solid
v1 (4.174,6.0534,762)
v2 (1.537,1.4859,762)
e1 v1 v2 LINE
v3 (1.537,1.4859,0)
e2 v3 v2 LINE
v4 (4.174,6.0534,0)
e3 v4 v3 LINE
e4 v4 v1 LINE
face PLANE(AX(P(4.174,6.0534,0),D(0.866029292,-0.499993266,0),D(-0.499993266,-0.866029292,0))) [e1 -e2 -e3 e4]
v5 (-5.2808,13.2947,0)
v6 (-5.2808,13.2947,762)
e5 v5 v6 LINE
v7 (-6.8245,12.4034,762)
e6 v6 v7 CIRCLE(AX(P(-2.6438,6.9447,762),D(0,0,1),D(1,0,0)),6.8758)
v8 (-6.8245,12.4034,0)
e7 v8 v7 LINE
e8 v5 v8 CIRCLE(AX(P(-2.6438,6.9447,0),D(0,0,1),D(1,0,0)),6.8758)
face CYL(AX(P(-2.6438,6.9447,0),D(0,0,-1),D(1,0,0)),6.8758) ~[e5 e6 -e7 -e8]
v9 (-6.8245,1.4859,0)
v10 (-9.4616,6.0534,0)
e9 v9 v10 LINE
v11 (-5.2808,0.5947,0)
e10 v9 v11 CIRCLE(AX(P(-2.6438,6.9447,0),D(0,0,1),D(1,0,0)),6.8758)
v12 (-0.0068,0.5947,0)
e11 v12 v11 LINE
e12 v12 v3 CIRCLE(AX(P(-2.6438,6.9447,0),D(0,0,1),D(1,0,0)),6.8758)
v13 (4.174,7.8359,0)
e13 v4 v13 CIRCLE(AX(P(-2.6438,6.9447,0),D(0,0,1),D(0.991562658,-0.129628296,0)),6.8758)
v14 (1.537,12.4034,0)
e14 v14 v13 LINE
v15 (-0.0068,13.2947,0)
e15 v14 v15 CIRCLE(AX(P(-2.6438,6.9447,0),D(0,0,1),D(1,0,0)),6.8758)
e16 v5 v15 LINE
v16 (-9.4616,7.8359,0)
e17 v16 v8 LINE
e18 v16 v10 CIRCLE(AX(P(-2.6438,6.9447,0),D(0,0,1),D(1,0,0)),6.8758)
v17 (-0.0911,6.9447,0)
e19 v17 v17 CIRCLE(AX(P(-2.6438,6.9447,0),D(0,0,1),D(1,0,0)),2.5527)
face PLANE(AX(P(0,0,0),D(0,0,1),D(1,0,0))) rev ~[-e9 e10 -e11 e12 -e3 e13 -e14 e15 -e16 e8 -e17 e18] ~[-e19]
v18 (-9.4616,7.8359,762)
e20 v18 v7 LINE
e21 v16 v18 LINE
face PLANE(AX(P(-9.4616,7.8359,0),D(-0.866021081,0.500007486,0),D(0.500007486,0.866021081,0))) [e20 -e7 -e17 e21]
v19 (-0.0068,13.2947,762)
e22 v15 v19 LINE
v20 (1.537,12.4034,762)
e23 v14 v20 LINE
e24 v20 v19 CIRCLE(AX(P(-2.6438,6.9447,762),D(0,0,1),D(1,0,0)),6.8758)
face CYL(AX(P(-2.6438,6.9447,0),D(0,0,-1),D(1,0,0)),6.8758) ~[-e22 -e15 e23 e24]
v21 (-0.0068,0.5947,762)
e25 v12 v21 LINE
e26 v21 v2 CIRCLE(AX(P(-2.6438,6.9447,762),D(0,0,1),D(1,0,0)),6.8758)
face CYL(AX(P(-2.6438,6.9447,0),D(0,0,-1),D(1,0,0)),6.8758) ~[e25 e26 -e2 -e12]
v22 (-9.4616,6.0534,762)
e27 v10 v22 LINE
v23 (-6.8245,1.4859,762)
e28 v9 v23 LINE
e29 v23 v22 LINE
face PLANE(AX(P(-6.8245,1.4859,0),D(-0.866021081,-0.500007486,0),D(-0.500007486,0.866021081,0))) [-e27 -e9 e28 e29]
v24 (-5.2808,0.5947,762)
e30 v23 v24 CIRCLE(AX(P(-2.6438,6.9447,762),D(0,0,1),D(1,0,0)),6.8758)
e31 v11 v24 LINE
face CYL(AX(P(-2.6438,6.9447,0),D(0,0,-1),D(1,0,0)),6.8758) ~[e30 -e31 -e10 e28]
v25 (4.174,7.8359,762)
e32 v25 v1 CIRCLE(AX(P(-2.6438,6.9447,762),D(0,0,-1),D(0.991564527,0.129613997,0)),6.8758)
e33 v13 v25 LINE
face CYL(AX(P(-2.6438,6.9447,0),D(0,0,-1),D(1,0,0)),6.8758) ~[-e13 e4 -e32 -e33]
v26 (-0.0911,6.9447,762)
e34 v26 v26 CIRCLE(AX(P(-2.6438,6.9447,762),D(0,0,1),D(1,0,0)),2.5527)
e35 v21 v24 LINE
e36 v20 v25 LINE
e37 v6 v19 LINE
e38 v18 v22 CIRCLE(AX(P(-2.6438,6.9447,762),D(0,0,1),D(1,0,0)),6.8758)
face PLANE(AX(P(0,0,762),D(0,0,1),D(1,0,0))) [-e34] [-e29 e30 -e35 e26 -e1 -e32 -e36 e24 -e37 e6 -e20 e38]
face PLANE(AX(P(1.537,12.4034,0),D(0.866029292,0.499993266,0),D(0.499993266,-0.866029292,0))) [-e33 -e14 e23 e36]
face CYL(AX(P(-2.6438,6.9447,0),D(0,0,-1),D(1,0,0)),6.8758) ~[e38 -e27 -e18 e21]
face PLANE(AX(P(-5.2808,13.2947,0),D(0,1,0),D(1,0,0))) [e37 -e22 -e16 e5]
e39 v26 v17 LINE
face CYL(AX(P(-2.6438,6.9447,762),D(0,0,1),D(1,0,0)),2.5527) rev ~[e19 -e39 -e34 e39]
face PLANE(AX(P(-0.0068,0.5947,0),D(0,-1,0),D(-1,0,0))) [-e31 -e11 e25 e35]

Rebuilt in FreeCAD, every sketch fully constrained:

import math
import FreeCAD as App
import Part
import Sketcher

V = App.Vector
Q = App.Units.Quantity

doc = App.newDocument("Part")
params = doc.addObject("Spreadsheet::Sheet", "Params")
for row, (alias, value) in enumerate([
    ("pad1_length", "30 in"),
    ("sketch2_diameter", "0.201 in"),
    ("pocket1_length", "30 in"),
], start=1):
    params.set(f"A{row}", alias)
    params.set(f"B{row}", "=" + value)
    params.setAlias(f"B{row}", alias)

body = doc.addObject("PartDesign::Body", "Body")

# Sketch on XY plane
sketch1 = body.newObject("Sketcher::SketchObject", "Sketch")
sketch1.AttachmentSupport = (doc.getObject("XY_Plane"), [""])
sketch1.MapMode = "FlatFace"
sketch1.addGeometry([
    Part.ArcOfCircle(Part.Circle(V(-2.6, 6.9, 0), V(0, 0, 1), 6.9), math.radians(-7.45), math.radians(7.45)),  # 0
    Part.LineSegment(V(4.2, 7.8, 0), V(1.5, 12.4, 0)),  # 1
    Part.ArcOfCircle(Part.Circle(V(-2.6, 6.9, 0), V(0, 0, 1), 6.9), math.radians(52.55), math.radians(67.45)),  # 2
    Part.LineSegment(V(0, 13.3, 0), V(-5.3, 13.3, 0)),  # 3
    Part.ArcOfCircle(Part.Circle(V(-2.6, 6.9, 0), V(0, 0, 1), 6.9), math.radians(112.55), math.radians(127.45)),  # 4
    Part.LineSegment(V(-6.8, 12.4, 0), V(-9.5, 7.8, 0)),  # 5
    Part.ArcOfCircle(Part.Circle(V(-2.6, 6.9, 0), V(0, 0, 1), 6.9), math.radians(172.55), math.radians(187.45)),  # 6
    Part.LineSegment(V(-9.5, 6.1, 0), V(-6.8, 1.5, 0)),  # 7
    Part.ArcOfCircle(Part.Circle(V(-2.6, 6.9, 0), V(0, 0, 1), 6.9), math.radians(-127.45), math.radians(-112.55)),  # 8
    Part.LineSegment(V(-5.3, 0.6, 0), V(0, 0.6, 0)),  # 9
    Part.ArcOfCircle(Part.Circle(V(-2.6, 6.9, 0), V(0, 0, 1), 6.9), math.radians(-67.45), math.radians(-52.55)),  # 10
    Part.LineSegment(V(1.5, 1.5, 0), V(4.2, 6.1, 0)),  # 11
], False)
sketch1.addConstraint([
    Sketcher.Constraint("Coincident", 0, 2, 1, 1),
    Sketcher.Constraint("Coincident", 1, 2, 2, 1),
    Sketcher.Constraint("Coincident", 2, 2, 3, 1),
    Sketcher.Constraint("Coincident", 3, 2, 4, 1),
    Sketcher.Constraint("Coincident", 4, 2, 5, 1),
    Sketcher.Constraint("Coincident", 5, 2, 6, 1),
    Sketcher.Constraint("Coincident", 6, 2, 7, 1),
    Sketcher.Constraint("Coincident", 7, 2, 8, 1),
    Sketcher.Constraint("Coincident", 8, 2, 9, 1),
    Sketcher.Constraint("Coincident", 9, 2, 10, 1),
    Sketcher.Constraint("Coincident", 10, 2, 11, 1),
    Sketcher.Constraint("Coincident", 11, 2, 0, 1),
    Sketcher.Constraint("Horizontal", 3),
    Sketcher.Constraint("Horizontal", 9),
    Sketcher.Constraint("Coincident", 2, 3, 0, 3),
    Sketcher.Constraint("Coincident", 4, 3, 0, 3),
    Sketcher.Constraint("Coincident", 6, 3, 0, 3),
    Sketcher.Constraint("Coincident", 8, 3, 0, 3),
    Sketcher.Constraint("Coincident", 10, 3, 0, 3),
    Sketcher.Constraint("Equal", 0, 2),
    Sketcher.Constraint("Equal", 2, 4),
    Sketcher.Constraint("Equal", 4, 6),
    Sketcher.Constraint("Equal", 6, 8),
    Sketcher.Constraint("Equal", 8, 10),
    Sketcher.Constraint("Parallel", 1, 7),
    Sketcher.Constraint("Parallel", 5, 11),
    Sketcher.Constraint("Horizontal", 1, 2, 4, 2),
    Sketcher.Constraint("Horizontal", 0, 2, 5, 2),
    Sketcher.Constraint("Horizontal", 7, 2, 10, 2),
    Sketcher.Constraint("Vertical", 5, 2, 6, 2),
    Sketcher.Constraint("Vertical", 3, 2, 8, 2),
    Sketcher.Constraint("Radius", 0, Q("0.2707 in")),
    Sketcher.Constraint("Angle", 1, Q("119.9996 deg")),
    Sketcher.Constraint("DistanceY", 0, 3, 2, 2, Q("0.25 in")),
    Sketcher.Constraint("DistanceY", 10, 2, 0, 2, Q("0.25 in")),
    Sketcher.Constraint("DistanceY", -1, 1, 0, 2, Q("0.3085 in")),
    Sketcher.Constraint("DistanceX", -1, 1, 1, 2, Q("0.0605 in")),
])
pad1 = body.newObject("PartDesign::Pad", "Pad")
pad1.Profile = sketch1
pad1.setExpression("Length", "Params.pad1_length")

# Sketch on XY plane
sketch2 = body.newObject("Sketcher::SketchObject", "Sketch001")
sketch2.AttachmentSupport = (doc.getObject("XY_Plane"), [""])
sketch2.MapMode = "FlatFace"
sketch2.AttachmentOffset = App.Placement(V(0, 0, 30 * 25.4), App.Rotation())
sketch2.addGeometry(Part.Circle(V(-2.6, 6.9, 0), V(0, 0, 1), 2.6), False)
sketch2.addConstraint([
    Sketcher.Constraint("Diameter", 0, Q("0.201 in")),
    Sketcher.Constraint("DistanceX", 0, 3, -1, 1, 2.6438),
    Sketcher.Constraint("DistanceY", -1, 1, 0, 3, 6.9447),
])
sketch2.setExpression("Constraints[0]", "Params.sketch2_diameter")
pocket1 = body.newObject("PartDesign::Pocket", "Pocket")
pocket1.Profile = sketch2
pocket1.setExpression("Length", "Params.pocket1_length")

doc.recompute()
